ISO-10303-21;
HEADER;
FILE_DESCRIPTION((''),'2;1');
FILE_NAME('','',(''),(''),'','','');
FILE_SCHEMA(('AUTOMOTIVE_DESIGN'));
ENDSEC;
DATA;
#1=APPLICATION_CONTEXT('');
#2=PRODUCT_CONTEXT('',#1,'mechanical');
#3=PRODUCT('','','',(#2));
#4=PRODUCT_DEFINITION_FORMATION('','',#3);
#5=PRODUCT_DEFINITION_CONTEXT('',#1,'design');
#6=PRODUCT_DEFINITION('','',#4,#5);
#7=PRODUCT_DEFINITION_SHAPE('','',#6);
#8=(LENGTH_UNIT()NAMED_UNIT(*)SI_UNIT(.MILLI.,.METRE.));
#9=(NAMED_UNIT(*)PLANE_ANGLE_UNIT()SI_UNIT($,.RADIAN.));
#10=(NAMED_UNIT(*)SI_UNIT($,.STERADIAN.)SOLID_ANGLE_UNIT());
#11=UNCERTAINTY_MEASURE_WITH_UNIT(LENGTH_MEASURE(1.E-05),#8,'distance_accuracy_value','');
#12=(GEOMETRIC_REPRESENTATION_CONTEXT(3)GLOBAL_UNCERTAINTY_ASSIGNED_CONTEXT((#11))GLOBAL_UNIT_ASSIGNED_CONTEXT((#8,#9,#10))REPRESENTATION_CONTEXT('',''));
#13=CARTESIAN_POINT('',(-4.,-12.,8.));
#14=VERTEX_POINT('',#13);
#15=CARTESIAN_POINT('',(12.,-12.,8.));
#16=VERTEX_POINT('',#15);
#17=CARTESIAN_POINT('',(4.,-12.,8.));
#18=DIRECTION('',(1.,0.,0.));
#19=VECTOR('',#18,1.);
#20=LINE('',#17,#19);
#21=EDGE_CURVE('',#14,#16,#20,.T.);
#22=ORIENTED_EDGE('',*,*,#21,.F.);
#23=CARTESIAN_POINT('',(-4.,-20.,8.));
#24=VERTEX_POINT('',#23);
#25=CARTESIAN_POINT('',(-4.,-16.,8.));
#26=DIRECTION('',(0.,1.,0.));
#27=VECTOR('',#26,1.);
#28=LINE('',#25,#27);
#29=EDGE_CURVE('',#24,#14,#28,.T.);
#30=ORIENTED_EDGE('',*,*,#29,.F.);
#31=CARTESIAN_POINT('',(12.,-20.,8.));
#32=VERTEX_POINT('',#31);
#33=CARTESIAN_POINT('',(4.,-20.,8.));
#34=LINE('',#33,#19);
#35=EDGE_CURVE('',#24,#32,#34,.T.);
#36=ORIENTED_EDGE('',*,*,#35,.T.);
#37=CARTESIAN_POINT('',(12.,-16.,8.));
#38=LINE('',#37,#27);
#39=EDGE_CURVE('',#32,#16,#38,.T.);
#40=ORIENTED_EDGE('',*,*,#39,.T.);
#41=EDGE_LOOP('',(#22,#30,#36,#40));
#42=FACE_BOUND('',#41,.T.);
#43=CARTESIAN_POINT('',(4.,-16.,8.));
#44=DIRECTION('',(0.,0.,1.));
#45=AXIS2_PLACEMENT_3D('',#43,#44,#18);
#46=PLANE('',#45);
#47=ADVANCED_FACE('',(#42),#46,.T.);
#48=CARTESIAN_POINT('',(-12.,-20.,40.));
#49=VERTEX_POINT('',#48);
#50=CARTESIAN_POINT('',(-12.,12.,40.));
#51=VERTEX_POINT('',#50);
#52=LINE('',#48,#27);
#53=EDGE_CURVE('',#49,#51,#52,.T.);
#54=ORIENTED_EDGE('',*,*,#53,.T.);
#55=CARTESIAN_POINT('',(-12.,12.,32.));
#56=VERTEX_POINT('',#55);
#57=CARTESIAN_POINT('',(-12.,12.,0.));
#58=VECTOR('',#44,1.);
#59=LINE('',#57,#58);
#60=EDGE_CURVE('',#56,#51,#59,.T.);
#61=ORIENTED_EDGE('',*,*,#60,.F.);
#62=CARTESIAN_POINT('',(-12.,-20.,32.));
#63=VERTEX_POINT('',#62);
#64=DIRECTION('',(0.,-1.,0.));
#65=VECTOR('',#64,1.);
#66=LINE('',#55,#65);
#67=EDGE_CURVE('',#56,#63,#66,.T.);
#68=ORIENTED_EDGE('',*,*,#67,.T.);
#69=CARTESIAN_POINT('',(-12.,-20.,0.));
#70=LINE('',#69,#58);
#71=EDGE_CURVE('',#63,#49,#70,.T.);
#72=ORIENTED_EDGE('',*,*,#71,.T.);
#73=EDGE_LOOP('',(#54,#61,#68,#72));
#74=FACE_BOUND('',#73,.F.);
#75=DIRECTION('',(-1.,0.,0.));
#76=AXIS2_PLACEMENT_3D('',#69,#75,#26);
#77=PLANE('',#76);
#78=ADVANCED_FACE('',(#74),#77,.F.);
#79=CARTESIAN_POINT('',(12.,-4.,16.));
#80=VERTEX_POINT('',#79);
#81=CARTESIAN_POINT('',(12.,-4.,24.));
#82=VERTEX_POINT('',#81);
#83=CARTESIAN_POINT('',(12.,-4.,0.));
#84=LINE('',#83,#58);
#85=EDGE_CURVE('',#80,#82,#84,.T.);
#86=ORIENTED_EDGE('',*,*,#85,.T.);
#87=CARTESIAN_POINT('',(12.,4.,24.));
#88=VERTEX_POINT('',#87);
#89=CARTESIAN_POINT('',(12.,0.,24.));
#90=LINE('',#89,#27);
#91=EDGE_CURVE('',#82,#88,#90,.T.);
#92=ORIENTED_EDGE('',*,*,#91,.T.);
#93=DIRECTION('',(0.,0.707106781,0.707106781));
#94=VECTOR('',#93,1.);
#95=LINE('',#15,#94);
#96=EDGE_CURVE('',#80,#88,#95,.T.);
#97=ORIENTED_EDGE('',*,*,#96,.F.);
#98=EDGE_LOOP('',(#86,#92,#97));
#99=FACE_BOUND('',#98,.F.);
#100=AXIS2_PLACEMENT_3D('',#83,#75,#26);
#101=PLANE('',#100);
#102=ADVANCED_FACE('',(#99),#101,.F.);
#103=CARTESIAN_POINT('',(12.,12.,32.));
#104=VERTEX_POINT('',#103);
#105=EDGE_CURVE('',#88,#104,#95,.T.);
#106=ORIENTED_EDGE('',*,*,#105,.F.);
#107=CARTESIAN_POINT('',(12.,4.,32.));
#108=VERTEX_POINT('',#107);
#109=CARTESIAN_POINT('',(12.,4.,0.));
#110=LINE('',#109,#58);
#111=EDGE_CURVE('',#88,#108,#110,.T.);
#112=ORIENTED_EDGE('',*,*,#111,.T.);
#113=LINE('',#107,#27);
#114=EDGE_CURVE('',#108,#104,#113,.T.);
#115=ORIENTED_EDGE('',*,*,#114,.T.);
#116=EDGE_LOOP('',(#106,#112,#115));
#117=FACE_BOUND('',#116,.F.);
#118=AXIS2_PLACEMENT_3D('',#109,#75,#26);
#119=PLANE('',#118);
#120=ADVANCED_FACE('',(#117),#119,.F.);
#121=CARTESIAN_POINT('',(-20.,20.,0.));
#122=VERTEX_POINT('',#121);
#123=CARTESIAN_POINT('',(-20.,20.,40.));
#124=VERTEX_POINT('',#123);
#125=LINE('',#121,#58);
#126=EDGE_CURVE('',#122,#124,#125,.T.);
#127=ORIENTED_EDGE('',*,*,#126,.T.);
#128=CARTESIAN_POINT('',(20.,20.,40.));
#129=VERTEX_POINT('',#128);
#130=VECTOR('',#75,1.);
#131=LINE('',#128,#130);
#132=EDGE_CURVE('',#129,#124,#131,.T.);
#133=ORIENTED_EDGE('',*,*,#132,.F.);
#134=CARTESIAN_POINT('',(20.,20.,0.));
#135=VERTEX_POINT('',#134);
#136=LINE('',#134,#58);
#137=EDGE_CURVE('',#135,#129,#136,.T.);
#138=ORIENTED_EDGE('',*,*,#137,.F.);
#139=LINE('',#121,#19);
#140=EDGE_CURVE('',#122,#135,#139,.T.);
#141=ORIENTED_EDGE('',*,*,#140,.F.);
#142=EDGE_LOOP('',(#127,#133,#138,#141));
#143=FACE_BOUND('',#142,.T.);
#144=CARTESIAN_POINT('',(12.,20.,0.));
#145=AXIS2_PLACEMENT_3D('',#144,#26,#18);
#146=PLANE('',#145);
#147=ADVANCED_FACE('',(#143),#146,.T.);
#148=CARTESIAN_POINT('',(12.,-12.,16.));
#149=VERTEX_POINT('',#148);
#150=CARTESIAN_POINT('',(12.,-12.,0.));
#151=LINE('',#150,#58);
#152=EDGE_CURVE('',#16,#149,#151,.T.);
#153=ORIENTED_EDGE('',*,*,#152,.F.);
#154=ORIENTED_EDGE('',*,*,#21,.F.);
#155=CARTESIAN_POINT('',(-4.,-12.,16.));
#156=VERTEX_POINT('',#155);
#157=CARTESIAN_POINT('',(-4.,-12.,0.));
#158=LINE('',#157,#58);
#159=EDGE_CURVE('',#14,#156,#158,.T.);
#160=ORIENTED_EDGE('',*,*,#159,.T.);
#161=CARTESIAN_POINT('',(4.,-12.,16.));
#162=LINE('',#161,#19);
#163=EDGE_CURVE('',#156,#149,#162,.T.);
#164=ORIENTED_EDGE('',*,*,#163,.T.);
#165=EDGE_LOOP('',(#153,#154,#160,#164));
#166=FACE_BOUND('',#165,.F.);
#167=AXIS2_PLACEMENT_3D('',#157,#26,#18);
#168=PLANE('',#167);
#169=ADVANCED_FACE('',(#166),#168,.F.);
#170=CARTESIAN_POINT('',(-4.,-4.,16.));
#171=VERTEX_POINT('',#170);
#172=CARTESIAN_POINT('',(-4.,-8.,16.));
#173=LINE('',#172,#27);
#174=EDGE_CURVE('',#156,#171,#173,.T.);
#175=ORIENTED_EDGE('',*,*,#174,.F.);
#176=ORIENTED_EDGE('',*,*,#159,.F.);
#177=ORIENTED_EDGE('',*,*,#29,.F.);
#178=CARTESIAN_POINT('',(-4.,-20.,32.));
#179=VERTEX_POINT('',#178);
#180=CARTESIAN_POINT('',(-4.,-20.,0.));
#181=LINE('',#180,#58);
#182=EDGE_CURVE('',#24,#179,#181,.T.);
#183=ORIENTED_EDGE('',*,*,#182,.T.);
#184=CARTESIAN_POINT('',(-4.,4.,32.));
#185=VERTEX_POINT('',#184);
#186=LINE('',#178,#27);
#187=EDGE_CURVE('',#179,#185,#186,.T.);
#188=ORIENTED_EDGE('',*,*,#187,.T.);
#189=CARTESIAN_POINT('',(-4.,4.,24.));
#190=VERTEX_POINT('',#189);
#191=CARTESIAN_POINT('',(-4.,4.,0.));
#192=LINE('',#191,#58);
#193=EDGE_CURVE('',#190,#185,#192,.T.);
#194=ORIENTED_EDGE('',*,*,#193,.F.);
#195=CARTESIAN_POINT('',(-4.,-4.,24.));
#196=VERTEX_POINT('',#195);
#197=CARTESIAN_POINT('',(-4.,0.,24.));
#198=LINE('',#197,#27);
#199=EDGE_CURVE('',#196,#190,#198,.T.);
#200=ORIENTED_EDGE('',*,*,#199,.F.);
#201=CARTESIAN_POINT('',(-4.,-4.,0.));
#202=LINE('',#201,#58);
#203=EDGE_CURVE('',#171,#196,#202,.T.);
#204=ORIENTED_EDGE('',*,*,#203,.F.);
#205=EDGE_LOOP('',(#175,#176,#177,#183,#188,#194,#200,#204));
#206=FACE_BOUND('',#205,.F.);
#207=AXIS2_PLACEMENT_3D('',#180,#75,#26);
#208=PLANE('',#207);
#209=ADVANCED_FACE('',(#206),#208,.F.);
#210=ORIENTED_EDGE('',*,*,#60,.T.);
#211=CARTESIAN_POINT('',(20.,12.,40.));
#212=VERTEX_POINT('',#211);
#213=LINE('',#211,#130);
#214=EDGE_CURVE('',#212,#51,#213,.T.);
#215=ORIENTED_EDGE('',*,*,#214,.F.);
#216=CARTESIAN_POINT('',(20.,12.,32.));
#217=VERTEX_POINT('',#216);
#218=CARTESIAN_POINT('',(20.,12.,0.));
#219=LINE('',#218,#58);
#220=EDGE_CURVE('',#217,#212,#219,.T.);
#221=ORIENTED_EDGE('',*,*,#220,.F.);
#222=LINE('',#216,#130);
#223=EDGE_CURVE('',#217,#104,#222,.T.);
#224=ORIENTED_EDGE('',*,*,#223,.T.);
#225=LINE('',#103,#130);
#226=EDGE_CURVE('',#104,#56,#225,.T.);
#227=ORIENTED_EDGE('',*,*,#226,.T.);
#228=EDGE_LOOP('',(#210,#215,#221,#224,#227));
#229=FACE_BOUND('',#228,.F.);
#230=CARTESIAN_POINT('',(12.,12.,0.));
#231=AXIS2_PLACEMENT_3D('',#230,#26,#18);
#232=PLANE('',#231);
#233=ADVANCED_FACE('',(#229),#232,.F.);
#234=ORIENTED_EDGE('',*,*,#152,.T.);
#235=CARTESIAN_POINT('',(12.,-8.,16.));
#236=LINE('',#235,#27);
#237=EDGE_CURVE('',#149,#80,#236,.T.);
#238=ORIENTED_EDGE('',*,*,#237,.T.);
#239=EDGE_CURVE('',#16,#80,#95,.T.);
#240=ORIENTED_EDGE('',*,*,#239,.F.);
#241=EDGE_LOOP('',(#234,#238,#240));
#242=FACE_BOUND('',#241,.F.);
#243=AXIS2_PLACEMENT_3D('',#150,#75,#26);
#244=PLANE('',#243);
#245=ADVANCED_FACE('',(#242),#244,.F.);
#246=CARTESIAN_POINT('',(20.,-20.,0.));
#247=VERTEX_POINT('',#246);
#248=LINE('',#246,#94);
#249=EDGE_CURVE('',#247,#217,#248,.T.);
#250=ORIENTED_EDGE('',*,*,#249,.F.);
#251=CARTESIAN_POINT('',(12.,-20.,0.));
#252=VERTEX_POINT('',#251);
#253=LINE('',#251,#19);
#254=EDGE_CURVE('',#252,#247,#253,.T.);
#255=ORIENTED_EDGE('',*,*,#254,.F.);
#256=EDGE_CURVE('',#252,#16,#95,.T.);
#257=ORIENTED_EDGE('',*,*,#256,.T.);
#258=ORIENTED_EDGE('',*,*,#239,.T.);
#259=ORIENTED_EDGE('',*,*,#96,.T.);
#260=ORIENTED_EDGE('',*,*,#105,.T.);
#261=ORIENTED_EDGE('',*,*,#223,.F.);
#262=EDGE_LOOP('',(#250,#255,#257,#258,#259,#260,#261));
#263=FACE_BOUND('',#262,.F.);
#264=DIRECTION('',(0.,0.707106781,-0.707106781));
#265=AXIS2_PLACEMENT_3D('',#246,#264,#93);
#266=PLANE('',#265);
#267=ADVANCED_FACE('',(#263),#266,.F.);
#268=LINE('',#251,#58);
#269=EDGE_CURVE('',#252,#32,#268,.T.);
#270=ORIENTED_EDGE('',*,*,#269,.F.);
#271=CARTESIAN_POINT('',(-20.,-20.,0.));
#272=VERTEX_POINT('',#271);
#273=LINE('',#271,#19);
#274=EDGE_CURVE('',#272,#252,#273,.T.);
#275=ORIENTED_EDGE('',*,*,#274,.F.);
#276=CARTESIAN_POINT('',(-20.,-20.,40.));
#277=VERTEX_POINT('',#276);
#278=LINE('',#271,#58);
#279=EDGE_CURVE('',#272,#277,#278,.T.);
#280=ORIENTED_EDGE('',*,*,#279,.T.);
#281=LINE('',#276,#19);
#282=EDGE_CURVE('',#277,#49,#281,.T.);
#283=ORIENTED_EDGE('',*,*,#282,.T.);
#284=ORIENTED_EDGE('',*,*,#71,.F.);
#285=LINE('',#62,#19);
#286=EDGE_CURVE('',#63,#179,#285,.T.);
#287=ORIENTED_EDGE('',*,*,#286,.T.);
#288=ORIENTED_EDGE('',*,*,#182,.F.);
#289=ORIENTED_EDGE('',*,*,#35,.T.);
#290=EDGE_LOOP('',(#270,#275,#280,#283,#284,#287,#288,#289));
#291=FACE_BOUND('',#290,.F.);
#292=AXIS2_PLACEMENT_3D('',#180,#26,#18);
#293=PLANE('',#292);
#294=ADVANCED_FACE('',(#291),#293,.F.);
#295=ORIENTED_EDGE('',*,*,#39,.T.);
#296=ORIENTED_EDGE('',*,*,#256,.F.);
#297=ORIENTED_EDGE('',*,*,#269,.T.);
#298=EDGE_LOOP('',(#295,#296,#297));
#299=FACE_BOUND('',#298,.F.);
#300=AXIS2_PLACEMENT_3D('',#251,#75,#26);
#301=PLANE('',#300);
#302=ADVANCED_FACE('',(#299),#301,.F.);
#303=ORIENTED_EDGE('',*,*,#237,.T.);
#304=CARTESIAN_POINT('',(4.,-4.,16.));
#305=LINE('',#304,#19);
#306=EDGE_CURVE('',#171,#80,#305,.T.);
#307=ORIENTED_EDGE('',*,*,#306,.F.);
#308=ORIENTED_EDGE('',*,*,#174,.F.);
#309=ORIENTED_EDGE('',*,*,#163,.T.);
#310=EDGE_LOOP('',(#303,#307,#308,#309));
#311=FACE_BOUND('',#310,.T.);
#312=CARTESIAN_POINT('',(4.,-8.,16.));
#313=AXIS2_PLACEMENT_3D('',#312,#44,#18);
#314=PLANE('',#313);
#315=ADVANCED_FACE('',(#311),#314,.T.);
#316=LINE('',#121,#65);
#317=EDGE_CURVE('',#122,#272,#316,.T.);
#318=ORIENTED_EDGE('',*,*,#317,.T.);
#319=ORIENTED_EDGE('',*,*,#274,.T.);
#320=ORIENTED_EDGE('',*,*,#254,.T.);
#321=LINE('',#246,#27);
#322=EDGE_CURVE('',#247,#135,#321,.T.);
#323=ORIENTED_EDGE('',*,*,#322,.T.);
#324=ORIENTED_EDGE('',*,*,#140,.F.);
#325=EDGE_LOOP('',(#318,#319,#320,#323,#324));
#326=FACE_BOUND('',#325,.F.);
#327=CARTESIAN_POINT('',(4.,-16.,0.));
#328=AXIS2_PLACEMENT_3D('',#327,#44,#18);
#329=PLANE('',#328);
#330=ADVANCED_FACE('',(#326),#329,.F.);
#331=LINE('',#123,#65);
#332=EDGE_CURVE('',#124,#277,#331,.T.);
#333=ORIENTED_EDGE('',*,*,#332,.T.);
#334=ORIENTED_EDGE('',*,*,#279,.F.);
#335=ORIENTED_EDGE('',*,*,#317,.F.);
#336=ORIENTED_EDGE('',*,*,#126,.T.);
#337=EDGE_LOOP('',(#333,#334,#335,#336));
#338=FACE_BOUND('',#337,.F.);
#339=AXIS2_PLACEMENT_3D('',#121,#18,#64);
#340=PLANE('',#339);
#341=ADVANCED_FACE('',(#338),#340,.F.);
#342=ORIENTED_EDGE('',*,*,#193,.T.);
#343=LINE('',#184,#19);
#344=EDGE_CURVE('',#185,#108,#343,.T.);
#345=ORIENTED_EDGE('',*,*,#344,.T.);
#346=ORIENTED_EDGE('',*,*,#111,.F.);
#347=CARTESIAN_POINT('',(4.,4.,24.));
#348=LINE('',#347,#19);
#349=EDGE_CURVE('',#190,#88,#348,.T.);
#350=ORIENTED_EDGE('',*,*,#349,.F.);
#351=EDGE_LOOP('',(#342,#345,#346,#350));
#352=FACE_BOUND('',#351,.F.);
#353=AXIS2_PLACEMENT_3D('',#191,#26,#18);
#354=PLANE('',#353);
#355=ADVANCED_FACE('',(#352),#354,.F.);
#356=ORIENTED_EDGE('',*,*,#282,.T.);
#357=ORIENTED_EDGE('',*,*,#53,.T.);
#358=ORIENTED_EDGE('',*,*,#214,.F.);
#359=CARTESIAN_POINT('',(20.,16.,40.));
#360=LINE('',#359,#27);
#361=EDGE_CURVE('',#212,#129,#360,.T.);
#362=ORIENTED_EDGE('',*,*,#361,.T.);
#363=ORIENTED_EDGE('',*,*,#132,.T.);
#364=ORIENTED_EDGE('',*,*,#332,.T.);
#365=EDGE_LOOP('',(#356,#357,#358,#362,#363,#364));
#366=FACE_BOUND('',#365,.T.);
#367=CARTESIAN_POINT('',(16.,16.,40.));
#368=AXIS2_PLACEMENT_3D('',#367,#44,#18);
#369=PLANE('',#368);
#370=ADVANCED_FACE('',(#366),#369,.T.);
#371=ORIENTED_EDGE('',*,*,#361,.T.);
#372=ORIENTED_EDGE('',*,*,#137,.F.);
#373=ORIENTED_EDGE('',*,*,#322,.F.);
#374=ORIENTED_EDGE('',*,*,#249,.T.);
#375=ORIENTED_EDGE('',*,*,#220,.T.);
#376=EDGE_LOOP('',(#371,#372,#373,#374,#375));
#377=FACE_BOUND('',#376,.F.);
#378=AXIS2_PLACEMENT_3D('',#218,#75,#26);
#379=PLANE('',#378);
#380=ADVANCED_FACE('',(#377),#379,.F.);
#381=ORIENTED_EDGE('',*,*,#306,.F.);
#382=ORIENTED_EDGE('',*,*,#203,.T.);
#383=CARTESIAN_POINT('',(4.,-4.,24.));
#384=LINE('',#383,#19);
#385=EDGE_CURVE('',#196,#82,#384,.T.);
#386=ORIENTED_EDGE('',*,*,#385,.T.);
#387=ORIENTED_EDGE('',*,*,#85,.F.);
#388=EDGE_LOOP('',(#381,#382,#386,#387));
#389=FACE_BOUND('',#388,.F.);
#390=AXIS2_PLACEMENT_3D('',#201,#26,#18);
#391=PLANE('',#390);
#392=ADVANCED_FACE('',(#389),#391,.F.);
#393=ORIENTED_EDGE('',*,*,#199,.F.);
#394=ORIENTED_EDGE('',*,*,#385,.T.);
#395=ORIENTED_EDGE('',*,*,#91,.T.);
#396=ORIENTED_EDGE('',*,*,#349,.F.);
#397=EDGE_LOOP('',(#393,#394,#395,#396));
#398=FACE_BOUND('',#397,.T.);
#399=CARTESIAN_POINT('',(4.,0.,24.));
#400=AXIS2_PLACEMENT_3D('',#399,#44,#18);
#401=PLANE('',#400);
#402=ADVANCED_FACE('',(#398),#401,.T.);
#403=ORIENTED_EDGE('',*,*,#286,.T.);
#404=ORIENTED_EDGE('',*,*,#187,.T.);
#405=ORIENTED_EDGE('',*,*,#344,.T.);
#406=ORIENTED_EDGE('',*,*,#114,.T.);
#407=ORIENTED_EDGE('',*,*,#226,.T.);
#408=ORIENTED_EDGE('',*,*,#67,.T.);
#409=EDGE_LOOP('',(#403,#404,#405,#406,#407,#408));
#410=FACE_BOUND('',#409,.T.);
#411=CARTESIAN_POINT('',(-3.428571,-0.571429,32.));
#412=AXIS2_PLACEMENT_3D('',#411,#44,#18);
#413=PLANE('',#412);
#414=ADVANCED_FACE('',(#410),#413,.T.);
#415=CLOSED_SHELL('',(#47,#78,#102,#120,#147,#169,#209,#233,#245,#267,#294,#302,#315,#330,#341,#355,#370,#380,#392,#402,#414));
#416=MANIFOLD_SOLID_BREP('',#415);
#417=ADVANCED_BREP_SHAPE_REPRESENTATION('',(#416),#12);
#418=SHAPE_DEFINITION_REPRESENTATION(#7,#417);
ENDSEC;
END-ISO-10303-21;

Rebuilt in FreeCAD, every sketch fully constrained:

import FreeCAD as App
import Part
import Sketcher
Q = App.Units.Quantity


def add_polygon(sketch, points):
    """Adds a closed chain of lines whose ends are joined by coincident constraints."""
    first, n = sketch.GeometryCount, len(points)
    for a, b in zip(points, points[1:] + points[:1]):
        sketch.addGeometry(Part.LineSegment(App.Vector(*a, 0), App.Vector(*b, 0)), False)
    for i in range(n):
        sketch.addConstraint(Sketcher.Constraint("Coincident", first + i, 2, first + (i + 1) % n, 1))

doc = App.newDocument("Part")
body = doc.addObject("PartDesign::Body", "Body")
body.AllowCompound = True

# Sketch on XY plane
sketch1 = body.newObject("Sketcher::SketchObject", "Sketch")
sketch1.AttachmentSupport = (doc.getObject("XY_Plane"), [""])
sketch1.MapMode = "FlatFace"
add_polygon(sketch1, [(20, 12), (12, 12), (12, -20), (20, -20)])  # lines 0-3
sketch1.addConstraint([
    Sketcher.Constraint("Horizontal", 0),
    Sketcher.Constraint("Vertical", 1),
    Sketcher.Constraint("Horizontal", 2),
    Sketcher.Constraint("Vertical", 3),
    Sketcher.Constraint("DistanceX", 0, 2, 0, 1, Q("8 mm")),
    Sketcher.Constraint("DistanceY", 1, 2, 1, 1, Q("32 mm")),
    Sketcher.Constraint("DistanceX", -1, 1, 0, 2, Q("12 mm")),
    Sketcher.Constraint("DistanceY", -1, 1, 0, 2, Q("12 mm")),
])
pad1 = body.newObject("PartDesign::Pad", "Pad")
pad1.Profile = sketch1
pad1.Length = 32

# Sketch on YZ plane
sketch2 = body.newObject("Sketcher::SketchObject", "Sketch001")
sketch2.AttachmentSupport = (doc.getObject("YZ_Plane"), [""])
sketch2.MapMode = "FlatFace"
sketch2.AttachmentOffset = App.Placement(App.Vector(0, 0, 20), App.Rotation())
add_polygon(sketch2, [(-20, 0), (12, 32), (-20, 32)])  # lines 0-2
sketch2.addConstraint([
    Sketcher.Constraint("Horizontal", 1),
    Sketcher.Constraint("Vertical", 2),
    Sketcher.Constraint("PointOnObject", 2, 2, -1),
    Sketcher.Constraint("Equal", 1, 2),
    Sketcher.Constraint("DistanceX", 1, 2, 1, 1, Q("32 mm")),
    Sketcher.Constraint("DistanceX", -1, 1, 0, 2, Q("12 mm")),
])
pocket1 = body.newObject("PartDesign::Pocket", "Pocket")
pocket1.Profile = sketch2
pocket1.Length = 25

# Sketch on XY plane
sketch3 = body.newObject("Sketcher::SketchObject", "Sketch002")
sketch3.AttachmentSupport = (doc.getObject("XY_Plane"), [""])
sketch3.MapMode = "FlatFace"
add_polygon(sketch3, [(12, 20), (-20, 20), (-20, -20), (-12, -20), (-12, 12), (12, 12)])  # lines 0-5
sketch3.addConstraint([
    Sketcher.Constraint("Horizontal", 0),
    Sketcher.Constraint("Vertical", 1),
    Sketcher.Constraint("Horizontal", 2),
    Sketcher.Constraint("Vertical", 3),
    Sketcher.Constraint("Horizontal", 4),
    Sketcher.Constraint("Vertical", 5),
    Sketcher.Constraint("Symmetric", 2, 2, 5, 2, -1, 1),
    Sketcher.Constraint("Equal", 0, 3),
    Sketcher.Constraint("Equal", 2, 5),
    Sketcher.Constraint("DistanceX", 0, 2, 0, 1, Q("32 mm")),
    Sketcher.Constraint("DistanceX", 2, 1, 2, 2, Q("8 mm")),
])
pad2 = body.newObject("PartDesign::Pad", "Pad001")
pad2.Profile = sketch3
pad2.Length = 40

# Sketch on XY plane
sketch4 = body.newObject("Sketcher::SketchObject", "Sketch003")
sketch4.AttachmentSupport = (doc.getObject("XY_Plane"), [""])
sketch4.MapMode = "FlatFace"
add_polygon(sketch4, [(12, 20), (12, 12), (20, 12), (20, 20)])  # lines 0-3
sketch4.addConstraint([
    Sketcher.Constraint("Vertical", 0),
    Sketcher.Constraint("Horizontal", 1),
    Sketcher.Constraint("Vertical", 2),
    Sketcher.Constraint("Horizontal", 3),
    Sketcher.Constraint("Equal", 3, 0),
    Sketcher.Constraint("DistanceX", 1, 1, 1, 2, Q("8 mm")),
    Sketcher.Constraint("DistanceX", -1, 1, 0, 2, Q("12 mm")),
    Sketcher.Constraint("DistanceY", -1, 1, 0, 2, Q("12 mm")),
])
pad3 = body.newObject("PartDesign::Pad", "Pad002")
pad3.Profile = sketch4
pad3.Length = 40

# Sketch on XY plane
sketch5 = body.newObject("Sketcher::SketchObject", "Sketch004")
sketch5.AttachmentSupport = (doc.getObject("XY_Plane"), [""])
sketch5.MapMode = "FlatFace"
add_polygon(sketch5, [(12, 4), (12, 12), (-12, 12), (-12, -20), (-4, -20), (-4, 4)])  # lines 0-5
sketch5.addConstraint([
    Sketcher.Constraint("Vertical", 0),
    Sketcher.Constraint("Horizontal", 1),
    Sketcher.Constraint("Vertical", 2),
    Sketcher.Constraint("Horizontal", 3),
    Sketcher.Constraint("Vertical", 4),
    Sketcher.Constraint("Horizontal", 5),
    Sketcher.Constraint("Equal", 3, 0),
    Sketcher.Constraint("Equal", 1, 4),
    Sketcher.Constraint("DistanceX", 1, 2, 1, 1, Q("24 mm")),
    Sketcher.Constraint("DistanceX", 3, 1, 3, 2, Q("8 mm")),
    Sketcher.Constraint("DistanceX", -1, 1, 0, 2, Q("12 mm")),
    Sketcher.Constraint("DistanceY", -1, 1, 0, 2, Q("12 mm")),
])
pad4 = body.newObject("PartDesign::Pad", "Pad003")
pad4.Profile = sketch5
pad4.Length = 32

# Sketch on XY plane
sketch6 = body.newObject("Sketcher::SketchObject", "Sketch005")
sketch6.AttachmentSupport = (doc.getObject("XY_Plane"), [""])
sketch6.MapMode = "FlatFace"
add_polygon(sketch6, [(-4, 4), (-4, -4), (12, -4), (12, 4)])  # lines 0-3
sketch6.addConstraint([
    Sketcher.Constraint("Vertical", 0),
    Sketcher.Constraint("Horizontal", 1),
    Sketcher.Constraint("Vertical", 2),
    Sketcher.Constraint("Horizontal", 3),
    Sketcher.Constraint("DistanceX", 1, 1, 1, 2, Q("16 mm")),
    Sketcher.Constraint("DistanceY", 0, 2, 0, 1, Q("8 mm")),
    Sketcher.Constraint("DistanceX", 0, 2, -1, 1, Q("4 mm")),
    Sketcher.Constraint("DistanceY", 0, 2, -1, 1, Q("4 mm")),
])
pad5 = body.newObject("PartDesign::Pad", "Pad004")
pad5.Profile = sketch6
pad5.Length = 24

# Sketch on XY plane
sketch7 = body.newObject("Sketcher::SketchObject", "Sketch006")
sketch7.AttachmentSupport = (doc.getObject("XY_Plane"), [""])
sketch7.MapMode = "FlatFace"
add_polygon(sketch7, [(-4, -4), (-4, -12), (12, -12), (12, -4)])  # lines 0-3
sketch7.addConstraint([
    Sketcher.Constraint("Vertical", 0),
    Sketcher.Constraint("Horizontal", 1),
    Sketcher.Constraint("Vertical", 2),
    Sketcher.Constraint("Horizontal", 3),
    Sketcher.Constraint("DistanceX", 1, 1, 1, 2, Q("16 mm")),
    Sketcher.Constraint("DistanceY", 0, 2, 0, 1, Q("8 mm")),
    Sketcher.Constraint("DistanceX", 0, 2, -1, 1, Q("4 mm")),
    Sketcher.Constraint("DistanceY", 0, 2, -1, 1, Q("12 mm")),
])
pad6 = body.newObject("PartDesign::Pad", "Pad005")
pad6.Profile = sketch7
pad6.Length = 16

# Sketch on XY plane
sketch8 = body.newObject("Sketcher::SketchObject", "Sketch007")
sketch8.AttachmentSupport = (doc.getObject("XY_Plane"), [""])
sketch8.MapMode = "FlatFace"
add_polygon(sketch8, [(-4, -12), (-4, -20), (12, -20), (12, -12)])  # lines 0-3
sketch8.addConstraint([
    Sketcher.Constraint("Vertical", 0),
    Sketcher.Constraint("Horizontal", 1),
    Sketcher.Constraint("Vertical", 2),
    Sketcher.Constraint("Horizontal", 3),
    Sketcher.Constraint("DistanceX", 1, 1, 1, 2, Q("16 mm")),
    Sketcher.Constraint("DistanceY", 0, 2, 0, 1, Q("8 mm")),
    Sketcher.Constraint("DistanceX", 0, 2, -1, 1, Q("4 mm")),
    Sketcher.Constraint("DistanceY", 0, 2, -1, 1, Q("20 mm")),
])
pad7 = body.newObject("PartDesign::Pad", "Pad006")
pad7.Profile = sketch8
pad7.Length = 8

doc.recompute()
